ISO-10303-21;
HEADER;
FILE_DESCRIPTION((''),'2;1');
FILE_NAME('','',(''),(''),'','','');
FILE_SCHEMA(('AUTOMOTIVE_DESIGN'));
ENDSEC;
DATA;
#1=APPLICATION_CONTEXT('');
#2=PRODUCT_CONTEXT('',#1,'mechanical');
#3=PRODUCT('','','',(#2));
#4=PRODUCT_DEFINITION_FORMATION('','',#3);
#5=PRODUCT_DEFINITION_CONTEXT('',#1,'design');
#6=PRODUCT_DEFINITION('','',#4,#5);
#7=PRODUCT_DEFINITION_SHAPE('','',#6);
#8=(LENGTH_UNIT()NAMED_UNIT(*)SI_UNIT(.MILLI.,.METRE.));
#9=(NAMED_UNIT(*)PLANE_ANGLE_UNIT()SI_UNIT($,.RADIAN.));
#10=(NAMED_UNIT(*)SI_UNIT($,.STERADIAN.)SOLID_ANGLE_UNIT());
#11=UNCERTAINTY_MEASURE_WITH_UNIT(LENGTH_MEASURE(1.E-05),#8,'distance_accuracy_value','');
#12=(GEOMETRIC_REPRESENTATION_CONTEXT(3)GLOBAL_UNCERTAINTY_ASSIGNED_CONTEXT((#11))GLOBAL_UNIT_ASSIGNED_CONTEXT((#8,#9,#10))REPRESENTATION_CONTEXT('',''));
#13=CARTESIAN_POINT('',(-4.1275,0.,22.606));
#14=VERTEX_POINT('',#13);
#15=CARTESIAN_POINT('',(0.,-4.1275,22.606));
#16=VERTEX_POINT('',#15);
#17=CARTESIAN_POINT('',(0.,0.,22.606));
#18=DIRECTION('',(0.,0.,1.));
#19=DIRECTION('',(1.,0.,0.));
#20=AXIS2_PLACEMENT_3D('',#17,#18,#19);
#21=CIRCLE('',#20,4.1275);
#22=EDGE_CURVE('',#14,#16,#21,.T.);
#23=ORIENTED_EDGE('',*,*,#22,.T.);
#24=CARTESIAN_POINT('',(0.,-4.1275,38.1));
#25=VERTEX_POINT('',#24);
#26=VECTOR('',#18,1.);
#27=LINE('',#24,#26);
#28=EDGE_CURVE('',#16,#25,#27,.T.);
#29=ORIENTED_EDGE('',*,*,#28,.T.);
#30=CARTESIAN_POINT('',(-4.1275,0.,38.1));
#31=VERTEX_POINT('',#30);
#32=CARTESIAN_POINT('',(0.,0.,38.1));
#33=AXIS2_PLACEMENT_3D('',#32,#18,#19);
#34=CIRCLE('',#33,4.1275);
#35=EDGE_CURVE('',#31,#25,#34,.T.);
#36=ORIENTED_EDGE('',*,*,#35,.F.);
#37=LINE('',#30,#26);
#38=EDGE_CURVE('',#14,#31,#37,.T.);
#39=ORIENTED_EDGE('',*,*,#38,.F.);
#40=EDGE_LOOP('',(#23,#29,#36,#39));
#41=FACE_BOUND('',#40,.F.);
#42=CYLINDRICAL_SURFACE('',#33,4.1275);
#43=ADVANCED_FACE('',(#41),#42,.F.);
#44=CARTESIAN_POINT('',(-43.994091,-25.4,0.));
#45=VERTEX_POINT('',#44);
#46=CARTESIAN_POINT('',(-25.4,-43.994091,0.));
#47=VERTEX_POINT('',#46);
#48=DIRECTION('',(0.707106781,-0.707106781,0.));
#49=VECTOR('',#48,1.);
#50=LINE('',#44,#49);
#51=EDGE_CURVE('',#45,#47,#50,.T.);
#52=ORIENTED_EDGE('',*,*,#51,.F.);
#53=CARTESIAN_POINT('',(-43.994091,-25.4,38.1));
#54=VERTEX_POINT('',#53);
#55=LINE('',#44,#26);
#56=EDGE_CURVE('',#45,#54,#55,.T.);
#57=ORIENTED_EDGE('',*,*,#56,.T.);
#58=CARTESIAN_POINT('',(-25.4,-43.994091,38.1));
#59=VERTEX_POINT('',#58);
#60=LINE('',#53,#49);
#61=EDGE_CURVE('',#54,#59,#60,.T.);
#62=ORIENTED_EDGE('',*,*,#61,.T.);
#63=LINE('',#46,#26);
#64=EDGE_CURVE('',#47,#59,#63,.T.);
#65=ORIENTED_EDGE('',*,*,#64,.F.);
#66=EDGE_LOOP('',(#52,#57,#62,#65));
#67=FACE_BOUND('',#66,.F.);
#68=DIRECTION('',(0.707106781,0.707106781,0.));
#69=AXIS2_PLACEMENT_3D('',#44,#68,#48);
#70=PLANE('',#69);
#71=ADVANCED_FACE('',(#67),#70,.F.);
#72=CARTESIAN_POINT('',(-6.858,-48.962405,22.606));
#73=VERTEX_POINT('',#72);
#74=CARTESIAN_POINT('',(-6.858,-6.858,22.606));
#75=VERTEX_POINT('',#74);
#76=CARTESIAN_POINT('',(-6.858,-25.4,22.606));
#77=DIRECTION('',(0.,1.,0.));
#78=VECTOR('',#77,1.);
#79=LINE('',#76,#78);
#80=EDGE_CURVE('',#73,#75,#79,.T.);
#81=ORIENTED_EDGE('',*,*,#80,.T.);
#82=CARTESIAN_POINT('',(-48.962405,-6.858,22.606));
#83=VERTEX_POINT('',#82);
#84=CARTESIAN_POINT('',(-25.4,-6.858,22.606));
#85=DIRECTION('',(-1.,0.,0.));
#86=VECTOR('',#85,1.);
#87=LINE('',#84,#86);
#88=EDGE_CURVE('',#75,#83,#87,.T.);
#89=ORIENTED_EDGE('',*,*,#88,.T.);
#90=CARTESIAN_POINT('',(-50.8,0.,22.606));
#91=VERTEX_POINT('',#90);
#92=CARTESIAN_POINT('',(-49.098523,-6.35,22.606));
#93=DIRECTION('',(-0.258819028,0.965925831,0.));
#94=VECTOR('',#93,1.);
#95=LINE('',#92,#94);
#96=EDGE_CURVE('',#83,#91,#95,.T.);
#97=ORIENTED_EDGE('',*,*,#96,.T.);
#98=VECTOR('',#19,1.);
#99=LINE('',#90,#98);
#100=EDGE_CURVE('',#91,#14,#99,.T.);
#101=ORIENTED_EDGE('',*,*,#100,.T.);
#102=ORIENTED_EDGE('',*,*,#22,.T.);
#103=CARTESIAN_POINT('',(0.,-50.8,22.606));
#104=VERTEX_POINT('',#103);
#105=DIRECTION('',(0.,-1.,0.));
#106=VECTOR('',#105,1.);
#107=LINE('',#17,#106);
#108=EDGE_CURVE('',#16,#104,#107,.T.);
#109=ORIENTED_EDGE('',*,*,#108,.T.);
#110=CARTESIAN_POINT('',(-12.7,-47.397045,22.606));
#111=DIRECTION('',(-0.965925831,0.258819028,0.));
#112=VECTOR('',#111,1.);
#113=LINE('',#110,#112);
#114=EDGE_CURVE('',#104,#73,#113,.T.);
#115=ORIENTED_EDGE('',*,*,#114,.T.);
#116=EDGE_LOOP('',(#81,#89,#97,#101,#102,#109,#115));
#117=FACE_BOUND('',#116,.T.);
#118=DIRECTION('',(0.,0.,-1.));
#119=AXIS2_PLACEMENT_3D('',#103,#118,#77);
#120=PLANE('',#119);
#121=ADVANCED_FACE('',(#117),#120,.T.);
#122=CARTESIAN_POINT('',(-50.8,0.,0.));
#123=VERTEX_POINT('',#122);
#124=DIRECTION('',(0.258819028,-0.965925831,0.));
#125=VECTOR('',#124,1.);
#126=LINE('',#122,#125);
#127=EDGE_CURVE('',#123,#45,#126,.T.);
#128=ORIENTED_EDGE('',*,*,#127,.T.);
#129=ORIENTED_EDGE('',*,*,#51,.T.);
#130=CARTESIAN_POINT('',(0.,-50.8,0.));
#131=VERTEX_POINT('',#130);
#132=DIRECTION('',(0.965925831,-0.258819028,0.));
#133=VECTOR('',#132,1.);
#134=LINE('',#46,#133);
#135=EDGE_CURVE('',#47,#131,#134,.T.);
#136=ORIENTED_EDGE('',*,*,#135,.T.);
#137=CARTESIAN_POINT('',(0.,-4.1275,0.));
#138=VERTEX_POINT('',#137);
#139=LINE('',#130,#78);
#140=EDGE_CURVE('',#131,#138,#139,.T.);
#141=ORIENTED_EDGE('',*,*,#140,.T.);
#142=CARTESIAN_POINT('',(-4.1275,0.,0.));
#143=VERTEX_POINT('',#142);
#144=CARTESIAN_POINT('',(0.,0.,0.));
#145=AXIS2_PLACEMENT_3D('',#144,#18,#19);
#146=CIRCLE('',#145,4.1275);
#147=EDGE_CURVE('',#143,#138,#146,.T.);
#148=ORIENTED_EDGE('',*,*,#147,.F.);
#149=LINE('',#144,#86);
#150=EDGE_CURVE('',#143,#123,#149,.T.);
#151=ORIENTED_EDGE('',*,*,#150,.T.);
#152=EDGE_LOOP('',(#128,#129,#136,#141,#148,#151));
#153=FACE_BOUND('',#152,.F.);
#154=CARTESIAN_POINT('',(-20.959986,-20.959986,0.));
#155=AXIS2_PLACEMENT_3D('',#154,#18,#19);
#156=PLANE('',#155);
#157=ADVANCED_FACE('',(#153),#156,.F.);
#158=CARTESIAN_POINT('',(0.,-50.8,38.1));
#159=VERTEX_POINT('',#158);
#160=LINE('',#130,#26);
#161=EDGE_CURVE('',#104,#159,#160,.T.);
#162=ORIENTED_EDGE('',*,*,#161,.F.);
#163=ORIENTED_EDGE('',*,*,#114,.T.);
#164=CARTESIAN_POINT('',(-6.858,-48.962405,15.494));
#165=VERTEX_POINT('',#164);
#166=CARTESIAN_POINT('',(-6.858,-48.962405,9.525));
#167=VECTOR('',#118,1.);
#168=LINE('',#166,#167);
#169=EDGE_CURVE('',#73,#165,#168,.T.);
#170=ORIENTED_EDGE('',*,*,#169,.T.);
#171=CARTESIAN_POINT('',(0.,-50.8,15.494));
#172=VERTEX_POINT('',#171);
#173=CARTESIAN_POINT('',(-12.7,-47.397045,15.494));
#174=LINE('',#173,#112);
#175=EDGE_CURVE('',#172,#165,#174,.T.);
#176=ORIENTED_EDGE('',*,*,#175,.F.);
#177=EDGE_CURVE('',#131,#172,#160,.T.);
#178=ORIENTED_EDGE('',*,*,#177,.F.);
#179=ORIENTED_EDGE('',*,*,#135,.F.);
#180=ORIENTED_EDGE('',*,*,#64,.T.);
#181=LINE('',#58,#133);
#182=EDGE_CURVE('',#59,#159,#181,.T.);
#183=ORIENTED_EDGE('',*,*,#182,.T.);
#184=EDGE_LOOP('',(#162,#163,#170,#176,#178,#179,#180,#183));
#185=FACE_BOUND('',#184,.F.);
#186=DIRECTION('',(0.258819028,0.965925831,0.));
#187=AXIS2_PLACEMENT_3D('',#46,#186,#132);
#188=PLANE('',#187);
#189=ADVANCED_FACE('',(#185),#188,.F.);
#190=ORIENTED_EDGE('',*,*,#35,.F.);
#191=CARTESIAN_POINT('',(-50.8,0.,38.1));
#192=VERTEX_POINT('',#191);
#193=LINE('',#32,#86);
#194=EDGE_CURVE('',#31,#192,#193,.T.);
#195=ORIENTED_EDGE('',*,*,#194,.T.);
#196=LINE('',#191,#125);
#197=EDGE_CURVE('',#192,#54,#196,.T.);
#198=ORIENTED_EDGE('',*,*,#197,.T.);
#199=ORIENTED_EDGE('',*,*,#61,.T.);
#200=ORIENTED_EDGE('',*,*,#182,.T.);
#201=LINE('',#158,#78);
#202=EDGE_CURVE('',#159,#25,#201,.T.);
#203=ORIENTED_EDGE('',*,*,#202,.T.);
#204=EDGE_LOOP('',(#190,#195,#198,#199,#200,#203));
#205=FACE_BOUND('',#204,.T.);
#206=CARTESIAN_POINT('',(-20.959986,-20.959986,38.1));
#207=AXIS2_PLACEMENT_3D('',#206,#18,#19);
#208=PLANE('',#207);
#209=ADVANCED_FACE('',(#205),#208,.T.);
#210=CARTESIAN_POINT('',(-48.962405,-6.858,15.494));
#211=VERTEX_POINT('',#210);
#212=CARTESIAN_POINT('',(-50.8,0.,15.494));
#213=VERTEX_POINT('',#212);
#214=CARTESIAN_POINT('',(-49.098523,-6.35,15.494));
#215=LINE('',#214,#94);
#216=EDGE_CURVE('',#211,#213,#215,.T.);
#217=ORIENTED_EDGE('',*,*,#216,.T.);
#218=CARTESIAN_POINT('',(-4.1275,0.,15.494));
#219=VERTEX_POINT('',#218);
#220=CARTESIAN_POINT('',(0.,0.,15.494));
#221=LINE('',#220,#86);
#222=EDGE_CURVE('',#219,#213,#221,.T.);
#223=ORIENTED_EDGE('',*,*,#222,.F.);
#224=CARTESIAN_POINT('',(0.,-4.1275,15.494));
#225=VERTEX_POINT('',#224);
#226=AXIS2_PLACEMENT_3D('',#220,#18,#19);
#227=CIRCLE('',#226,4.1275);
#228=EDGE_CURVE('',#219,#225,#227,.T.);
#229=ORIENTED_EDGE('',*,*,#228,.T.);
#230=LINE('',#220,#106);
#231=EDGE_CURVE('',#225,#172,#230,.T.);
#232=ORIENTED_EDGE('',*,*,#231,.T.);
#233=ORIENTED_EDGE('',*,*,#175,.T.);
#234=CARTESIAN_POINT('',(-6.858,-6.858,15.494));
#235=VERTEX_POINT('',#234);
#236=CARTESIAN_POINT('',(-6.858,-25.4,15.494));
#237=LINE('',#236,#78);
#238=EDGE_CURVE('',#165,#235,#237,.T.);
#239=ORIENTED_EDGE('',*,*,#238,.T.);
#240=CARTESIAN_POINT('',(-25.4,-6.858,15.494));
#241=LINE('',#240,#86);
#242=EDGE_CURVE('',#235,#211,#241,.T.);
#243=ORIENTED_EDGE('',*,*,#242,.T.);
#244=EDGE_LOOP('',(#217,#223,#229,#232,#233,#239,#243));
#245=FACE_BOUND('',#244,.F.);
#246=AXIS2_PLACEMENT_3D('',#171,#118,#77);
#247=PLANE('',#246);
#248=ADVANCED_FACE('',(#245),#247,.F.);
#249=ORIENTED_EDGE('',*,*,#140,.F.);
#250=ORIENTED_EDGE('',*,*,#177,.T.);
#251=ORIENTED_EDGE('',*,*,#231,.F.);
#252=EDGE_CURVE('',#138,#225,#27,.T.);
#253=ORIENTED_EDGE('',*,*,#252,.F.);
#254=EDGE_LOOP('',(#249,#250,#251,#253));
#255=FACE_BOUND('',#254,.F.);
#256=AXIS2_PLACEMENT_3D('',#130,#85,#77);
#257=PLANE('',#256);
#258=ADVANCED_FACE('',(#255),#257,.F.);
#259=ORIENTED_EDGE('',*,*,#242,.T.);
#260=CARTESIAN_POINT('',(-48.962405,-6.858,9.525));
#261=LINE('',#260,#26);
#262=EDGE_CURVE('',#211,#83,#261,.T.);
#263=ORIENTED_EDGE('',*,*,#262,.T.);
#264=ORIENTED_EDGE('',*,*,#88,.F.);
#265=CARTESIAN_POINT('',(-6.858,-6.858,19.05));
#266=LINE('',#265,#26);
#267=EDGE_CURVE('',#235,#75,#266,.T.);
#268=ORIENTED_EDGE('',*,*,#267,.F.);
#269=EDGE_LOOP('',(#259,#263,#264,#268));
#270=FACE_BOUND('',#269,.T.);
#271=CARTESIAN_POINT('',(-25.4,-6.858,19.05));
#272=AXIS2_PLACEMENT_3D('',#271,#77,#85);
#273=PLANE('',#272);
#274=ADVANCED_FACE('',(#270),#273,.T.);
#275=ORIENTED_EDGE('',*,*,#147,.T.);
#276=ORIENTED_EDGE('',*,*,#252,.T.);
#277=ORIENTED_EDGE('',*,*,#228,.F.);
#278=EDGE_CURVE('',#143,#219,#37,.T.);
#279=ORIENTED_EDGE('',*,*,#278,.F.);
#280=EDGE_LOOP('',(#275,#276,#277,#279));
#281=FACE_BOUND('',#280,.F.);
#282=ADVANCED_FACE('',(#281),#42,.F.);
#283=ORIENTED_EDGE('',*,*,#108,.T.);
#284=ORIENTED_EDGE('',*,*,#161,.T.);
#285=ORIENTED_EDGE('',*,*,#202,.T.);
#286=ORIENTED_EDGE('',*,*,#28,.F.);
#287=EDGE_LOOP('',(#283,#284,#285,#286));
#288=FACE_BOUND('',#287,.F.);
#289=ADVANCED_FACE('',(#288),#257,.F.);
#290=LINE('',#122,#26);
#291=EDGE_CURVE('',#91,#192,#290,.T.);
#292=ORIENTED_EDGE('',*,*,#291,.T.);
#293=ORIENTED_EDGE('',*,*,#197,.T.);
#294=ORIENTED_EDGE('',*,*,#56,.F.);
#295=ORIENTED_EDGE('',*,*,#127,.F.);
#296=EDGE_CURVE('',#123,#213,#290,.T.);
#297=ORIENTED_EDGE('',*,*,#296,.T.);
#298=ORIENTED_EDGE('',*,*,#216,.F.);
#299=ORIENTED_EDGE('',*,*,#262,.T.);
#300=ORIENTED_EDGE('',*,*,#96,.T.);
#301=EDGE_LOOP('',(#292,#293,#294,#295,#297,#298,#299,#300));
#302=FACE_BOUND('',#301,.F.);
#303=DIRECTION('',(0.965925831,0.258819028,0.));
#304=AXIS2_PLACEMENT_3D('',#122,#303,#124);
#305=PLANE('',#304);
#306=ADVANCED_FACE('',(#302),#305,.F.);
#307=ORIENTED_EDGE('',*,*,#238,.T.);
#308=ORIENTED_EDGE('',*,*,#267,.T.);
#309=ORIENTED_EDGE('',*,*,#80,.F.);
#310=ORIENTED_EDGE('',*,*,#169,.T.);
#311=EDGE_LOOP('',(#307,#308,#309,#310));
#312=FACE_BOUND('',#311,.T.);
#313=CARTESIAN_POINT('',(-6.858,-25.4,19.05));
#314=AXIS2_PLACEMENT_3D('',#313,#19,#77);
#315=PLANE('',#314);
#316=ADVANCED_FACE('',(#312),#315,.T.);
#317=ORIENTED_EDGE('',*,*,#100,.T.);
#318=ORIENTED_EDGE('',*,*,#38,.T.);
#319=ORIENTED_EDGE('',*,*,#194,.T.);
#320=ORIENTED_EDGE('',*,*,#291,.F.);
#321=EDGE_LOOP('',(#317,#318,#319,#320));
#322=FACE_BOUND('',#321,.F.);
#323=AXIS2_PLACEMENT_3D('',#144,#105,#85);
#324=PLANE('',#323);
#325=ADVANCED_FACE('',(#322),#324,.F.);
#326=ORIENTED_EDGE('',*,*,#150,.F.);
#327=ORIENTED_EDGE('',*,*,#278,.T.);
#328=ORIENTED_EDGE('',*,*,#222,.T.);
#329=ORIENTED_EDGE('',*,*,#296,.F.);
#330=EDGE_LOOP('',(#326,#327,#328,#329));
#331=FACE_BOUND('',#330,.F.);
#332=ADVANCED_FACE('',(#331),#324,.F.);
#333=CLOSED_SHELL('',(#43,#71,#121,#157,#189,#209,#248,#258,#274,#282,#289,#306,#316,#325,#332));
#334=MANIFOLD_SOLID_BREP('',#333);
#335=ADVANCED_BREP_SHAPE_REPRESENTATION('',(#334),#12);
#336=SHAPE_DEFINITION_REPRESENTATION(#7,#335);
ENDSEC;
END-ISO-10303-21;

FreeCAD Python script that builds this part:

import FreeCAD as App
import Part
import Sketcher
Q = App.Units.Quantity


def add_polygon(sketch, points):
    """Adds a closed chain of lines whose ends are joined by coincident constraints."""
    first, n = sketch.GeometryCount, len(points)
    for a, b in zip(points, points[1:] + points[:1]):
        sketch.addGeometry(Part.LineSegment(App.Vector(*a, 0), App.Vector(*b, 0)), False)
    for i in range(n):
        sketch.addConstraint(Sketcher.Constraint("Coincident", first + i, 2, first + (i + 1) % n, 1))

doc = App.newDocument("Part")
body = doc.addObject("PartDesign::Body", "Body")

# Sketch on XY plane
sketch1 = body.newObject("Sketcher::SketchObject", "Sketch")
sketch1.AttachmentSupport = (doc.getObject("XY_Plane"), [""])
sketch1.MapMode = "FlatFace"
add_polygon(sketch1, [(-25.4, -43.994091), (0, -50.8), (0, 0), (-50.8, 0), (-43.994091, -25.4)])  # lines 0-4
sketch1.addConstraint([
    Sketcher.Constraint("Vertical", 1),
    Sketcher.Constraint("Horizontal", 2),
    Sketcher.Constraint("Coincident", 1, 2, -1, 1),
    Sketcher.Constraint("Equal", 2, 1),
    Sketcher.Constraint("Equal", 0, 3),
    Sketcher.Constraint("Equal", 3, 4),
    Sketcher.Constraint("DistanceX", 2, 2, 2, 1, Q("2 in")),
    Sketcher.Constraint("DistanceY", 3, 2, -1, 1, Q("1 in")),
    Sketcher.Constraint("DistanceX", 4, 2, -1, 1, Q("1 in")),
])
pad1 = body.newObject("PartDesign::Pad", "Pad")
pad1.Profile = sketch1
pad1.Length = Q("1.5 in")

# Sketch on YZ plane
sketch2 = body.newObject("Sketcher::SketchObject", "Sketch001")
sketch2.AttachmentSupport = (doc.getObject("YZ_Plane"), [""])
sketch2.MapMode = "FlatFace"
add_polygon(sketch2, [(-50.8, 22.606), (-50.8, 15.494), (0, 15.494), (0, 22.606)])  # lines 0-3
sketch2.addConstraint([
    Sketcher.Constraint("Vertical", 0),
    Sketcher.Constraint("Horizontal", 1),
    Sketcher.Constraint("Vertical", 2),
    Sketcher.Constraint("Horizontal", 3),
    Sketcher.Constraint("PointOnObject", 1, 2, -2),
    Sketcher.Constraint("DistanceX", 1, 1, 1, 2, Q("2 in")),
    Sketcher.Constraint("DistanceY", 0, 2, 0, 1, Q("0.28 in")),
    Sketcher.Constraint("DistanceY", -1, 1, 0, 2, Q("0.61 in")),
])
pocket1 = body.newObject("PartDesign::Pocket", "Pocket")
pocket1.Profile = sketch2
pocket1.Length = Q("0.27 in")

# Sketch on XZ plane
sketch3 = body.newObject("Sketcher::SketchObject", "Sketch002")
sketch3.AttachmentSupport = (doc.getObject("XZ_Plane"), [""])
sketch3.MapMode = "FlatFace"
add_polygon(sketch3, [(0, 22.606), (0, 15.494), (-50.8, 15.494), (-50.8, 22.606)])  # lines 0-3
sketch3.addConstraint([
    Sketcher.Constraint("Vertical", 0),
    Sketcher.Constraint("Horizontal", 1),
    Sketcher.Constraint("Vertical", 2),
    Sketcher.Constraint("Horizontal", 3),
    Sketcher.Constraint("PointOnObject", 0, 2, -2),
    Sketcher.Constraint("DistanceX", 1, 2, 1, 1, Q("2 in")),
    Sketcher.Constraint("DistanceY", 0, 2, 0, 1, Q("0.28 in")),
    Sketcher.Constraint("DistanceY", -1, 1, 0, 2, Q("0.61 in")),
])
pocket2 = body.newObject("PartDesign::Pocket", "Pocket001")
pocket2.Profile = sketch3
pocket2.Length = Q("0.27 in")
pocket2.Reversed = True

# Sketch on XY plane
sketch4 = body.newObject("Sketcher::SketchObject", "Sketch003")
sketch4.AttachmentSupport = (doc.getObject("XY_Plane"), [""])
sketch4.MapMode = "FlatFace"
sketch4.AttachmentOffset = App.Placement(App.Vector(0, 0, 1.5 * 25.4), App.Rotation())
sketch4.addGeometry(Part.Circle(App.Vector(0, 0, 0), App.Vector(0, 0, 1), 4.1275), False)
sketch4.addConstraint([
    Sketcher.Constraint("Coincident", 0, 3, -1, 1),
    Sketcher.Constraint("Diameter", 0, Q("0.325 in")),
])
pocket3 = body.newObject("PartDesign::Pocket", "Pocket002")
pocket3.Profile = sketch4
pocket3.Length = Q("1.56 in")

doc.recompute()
